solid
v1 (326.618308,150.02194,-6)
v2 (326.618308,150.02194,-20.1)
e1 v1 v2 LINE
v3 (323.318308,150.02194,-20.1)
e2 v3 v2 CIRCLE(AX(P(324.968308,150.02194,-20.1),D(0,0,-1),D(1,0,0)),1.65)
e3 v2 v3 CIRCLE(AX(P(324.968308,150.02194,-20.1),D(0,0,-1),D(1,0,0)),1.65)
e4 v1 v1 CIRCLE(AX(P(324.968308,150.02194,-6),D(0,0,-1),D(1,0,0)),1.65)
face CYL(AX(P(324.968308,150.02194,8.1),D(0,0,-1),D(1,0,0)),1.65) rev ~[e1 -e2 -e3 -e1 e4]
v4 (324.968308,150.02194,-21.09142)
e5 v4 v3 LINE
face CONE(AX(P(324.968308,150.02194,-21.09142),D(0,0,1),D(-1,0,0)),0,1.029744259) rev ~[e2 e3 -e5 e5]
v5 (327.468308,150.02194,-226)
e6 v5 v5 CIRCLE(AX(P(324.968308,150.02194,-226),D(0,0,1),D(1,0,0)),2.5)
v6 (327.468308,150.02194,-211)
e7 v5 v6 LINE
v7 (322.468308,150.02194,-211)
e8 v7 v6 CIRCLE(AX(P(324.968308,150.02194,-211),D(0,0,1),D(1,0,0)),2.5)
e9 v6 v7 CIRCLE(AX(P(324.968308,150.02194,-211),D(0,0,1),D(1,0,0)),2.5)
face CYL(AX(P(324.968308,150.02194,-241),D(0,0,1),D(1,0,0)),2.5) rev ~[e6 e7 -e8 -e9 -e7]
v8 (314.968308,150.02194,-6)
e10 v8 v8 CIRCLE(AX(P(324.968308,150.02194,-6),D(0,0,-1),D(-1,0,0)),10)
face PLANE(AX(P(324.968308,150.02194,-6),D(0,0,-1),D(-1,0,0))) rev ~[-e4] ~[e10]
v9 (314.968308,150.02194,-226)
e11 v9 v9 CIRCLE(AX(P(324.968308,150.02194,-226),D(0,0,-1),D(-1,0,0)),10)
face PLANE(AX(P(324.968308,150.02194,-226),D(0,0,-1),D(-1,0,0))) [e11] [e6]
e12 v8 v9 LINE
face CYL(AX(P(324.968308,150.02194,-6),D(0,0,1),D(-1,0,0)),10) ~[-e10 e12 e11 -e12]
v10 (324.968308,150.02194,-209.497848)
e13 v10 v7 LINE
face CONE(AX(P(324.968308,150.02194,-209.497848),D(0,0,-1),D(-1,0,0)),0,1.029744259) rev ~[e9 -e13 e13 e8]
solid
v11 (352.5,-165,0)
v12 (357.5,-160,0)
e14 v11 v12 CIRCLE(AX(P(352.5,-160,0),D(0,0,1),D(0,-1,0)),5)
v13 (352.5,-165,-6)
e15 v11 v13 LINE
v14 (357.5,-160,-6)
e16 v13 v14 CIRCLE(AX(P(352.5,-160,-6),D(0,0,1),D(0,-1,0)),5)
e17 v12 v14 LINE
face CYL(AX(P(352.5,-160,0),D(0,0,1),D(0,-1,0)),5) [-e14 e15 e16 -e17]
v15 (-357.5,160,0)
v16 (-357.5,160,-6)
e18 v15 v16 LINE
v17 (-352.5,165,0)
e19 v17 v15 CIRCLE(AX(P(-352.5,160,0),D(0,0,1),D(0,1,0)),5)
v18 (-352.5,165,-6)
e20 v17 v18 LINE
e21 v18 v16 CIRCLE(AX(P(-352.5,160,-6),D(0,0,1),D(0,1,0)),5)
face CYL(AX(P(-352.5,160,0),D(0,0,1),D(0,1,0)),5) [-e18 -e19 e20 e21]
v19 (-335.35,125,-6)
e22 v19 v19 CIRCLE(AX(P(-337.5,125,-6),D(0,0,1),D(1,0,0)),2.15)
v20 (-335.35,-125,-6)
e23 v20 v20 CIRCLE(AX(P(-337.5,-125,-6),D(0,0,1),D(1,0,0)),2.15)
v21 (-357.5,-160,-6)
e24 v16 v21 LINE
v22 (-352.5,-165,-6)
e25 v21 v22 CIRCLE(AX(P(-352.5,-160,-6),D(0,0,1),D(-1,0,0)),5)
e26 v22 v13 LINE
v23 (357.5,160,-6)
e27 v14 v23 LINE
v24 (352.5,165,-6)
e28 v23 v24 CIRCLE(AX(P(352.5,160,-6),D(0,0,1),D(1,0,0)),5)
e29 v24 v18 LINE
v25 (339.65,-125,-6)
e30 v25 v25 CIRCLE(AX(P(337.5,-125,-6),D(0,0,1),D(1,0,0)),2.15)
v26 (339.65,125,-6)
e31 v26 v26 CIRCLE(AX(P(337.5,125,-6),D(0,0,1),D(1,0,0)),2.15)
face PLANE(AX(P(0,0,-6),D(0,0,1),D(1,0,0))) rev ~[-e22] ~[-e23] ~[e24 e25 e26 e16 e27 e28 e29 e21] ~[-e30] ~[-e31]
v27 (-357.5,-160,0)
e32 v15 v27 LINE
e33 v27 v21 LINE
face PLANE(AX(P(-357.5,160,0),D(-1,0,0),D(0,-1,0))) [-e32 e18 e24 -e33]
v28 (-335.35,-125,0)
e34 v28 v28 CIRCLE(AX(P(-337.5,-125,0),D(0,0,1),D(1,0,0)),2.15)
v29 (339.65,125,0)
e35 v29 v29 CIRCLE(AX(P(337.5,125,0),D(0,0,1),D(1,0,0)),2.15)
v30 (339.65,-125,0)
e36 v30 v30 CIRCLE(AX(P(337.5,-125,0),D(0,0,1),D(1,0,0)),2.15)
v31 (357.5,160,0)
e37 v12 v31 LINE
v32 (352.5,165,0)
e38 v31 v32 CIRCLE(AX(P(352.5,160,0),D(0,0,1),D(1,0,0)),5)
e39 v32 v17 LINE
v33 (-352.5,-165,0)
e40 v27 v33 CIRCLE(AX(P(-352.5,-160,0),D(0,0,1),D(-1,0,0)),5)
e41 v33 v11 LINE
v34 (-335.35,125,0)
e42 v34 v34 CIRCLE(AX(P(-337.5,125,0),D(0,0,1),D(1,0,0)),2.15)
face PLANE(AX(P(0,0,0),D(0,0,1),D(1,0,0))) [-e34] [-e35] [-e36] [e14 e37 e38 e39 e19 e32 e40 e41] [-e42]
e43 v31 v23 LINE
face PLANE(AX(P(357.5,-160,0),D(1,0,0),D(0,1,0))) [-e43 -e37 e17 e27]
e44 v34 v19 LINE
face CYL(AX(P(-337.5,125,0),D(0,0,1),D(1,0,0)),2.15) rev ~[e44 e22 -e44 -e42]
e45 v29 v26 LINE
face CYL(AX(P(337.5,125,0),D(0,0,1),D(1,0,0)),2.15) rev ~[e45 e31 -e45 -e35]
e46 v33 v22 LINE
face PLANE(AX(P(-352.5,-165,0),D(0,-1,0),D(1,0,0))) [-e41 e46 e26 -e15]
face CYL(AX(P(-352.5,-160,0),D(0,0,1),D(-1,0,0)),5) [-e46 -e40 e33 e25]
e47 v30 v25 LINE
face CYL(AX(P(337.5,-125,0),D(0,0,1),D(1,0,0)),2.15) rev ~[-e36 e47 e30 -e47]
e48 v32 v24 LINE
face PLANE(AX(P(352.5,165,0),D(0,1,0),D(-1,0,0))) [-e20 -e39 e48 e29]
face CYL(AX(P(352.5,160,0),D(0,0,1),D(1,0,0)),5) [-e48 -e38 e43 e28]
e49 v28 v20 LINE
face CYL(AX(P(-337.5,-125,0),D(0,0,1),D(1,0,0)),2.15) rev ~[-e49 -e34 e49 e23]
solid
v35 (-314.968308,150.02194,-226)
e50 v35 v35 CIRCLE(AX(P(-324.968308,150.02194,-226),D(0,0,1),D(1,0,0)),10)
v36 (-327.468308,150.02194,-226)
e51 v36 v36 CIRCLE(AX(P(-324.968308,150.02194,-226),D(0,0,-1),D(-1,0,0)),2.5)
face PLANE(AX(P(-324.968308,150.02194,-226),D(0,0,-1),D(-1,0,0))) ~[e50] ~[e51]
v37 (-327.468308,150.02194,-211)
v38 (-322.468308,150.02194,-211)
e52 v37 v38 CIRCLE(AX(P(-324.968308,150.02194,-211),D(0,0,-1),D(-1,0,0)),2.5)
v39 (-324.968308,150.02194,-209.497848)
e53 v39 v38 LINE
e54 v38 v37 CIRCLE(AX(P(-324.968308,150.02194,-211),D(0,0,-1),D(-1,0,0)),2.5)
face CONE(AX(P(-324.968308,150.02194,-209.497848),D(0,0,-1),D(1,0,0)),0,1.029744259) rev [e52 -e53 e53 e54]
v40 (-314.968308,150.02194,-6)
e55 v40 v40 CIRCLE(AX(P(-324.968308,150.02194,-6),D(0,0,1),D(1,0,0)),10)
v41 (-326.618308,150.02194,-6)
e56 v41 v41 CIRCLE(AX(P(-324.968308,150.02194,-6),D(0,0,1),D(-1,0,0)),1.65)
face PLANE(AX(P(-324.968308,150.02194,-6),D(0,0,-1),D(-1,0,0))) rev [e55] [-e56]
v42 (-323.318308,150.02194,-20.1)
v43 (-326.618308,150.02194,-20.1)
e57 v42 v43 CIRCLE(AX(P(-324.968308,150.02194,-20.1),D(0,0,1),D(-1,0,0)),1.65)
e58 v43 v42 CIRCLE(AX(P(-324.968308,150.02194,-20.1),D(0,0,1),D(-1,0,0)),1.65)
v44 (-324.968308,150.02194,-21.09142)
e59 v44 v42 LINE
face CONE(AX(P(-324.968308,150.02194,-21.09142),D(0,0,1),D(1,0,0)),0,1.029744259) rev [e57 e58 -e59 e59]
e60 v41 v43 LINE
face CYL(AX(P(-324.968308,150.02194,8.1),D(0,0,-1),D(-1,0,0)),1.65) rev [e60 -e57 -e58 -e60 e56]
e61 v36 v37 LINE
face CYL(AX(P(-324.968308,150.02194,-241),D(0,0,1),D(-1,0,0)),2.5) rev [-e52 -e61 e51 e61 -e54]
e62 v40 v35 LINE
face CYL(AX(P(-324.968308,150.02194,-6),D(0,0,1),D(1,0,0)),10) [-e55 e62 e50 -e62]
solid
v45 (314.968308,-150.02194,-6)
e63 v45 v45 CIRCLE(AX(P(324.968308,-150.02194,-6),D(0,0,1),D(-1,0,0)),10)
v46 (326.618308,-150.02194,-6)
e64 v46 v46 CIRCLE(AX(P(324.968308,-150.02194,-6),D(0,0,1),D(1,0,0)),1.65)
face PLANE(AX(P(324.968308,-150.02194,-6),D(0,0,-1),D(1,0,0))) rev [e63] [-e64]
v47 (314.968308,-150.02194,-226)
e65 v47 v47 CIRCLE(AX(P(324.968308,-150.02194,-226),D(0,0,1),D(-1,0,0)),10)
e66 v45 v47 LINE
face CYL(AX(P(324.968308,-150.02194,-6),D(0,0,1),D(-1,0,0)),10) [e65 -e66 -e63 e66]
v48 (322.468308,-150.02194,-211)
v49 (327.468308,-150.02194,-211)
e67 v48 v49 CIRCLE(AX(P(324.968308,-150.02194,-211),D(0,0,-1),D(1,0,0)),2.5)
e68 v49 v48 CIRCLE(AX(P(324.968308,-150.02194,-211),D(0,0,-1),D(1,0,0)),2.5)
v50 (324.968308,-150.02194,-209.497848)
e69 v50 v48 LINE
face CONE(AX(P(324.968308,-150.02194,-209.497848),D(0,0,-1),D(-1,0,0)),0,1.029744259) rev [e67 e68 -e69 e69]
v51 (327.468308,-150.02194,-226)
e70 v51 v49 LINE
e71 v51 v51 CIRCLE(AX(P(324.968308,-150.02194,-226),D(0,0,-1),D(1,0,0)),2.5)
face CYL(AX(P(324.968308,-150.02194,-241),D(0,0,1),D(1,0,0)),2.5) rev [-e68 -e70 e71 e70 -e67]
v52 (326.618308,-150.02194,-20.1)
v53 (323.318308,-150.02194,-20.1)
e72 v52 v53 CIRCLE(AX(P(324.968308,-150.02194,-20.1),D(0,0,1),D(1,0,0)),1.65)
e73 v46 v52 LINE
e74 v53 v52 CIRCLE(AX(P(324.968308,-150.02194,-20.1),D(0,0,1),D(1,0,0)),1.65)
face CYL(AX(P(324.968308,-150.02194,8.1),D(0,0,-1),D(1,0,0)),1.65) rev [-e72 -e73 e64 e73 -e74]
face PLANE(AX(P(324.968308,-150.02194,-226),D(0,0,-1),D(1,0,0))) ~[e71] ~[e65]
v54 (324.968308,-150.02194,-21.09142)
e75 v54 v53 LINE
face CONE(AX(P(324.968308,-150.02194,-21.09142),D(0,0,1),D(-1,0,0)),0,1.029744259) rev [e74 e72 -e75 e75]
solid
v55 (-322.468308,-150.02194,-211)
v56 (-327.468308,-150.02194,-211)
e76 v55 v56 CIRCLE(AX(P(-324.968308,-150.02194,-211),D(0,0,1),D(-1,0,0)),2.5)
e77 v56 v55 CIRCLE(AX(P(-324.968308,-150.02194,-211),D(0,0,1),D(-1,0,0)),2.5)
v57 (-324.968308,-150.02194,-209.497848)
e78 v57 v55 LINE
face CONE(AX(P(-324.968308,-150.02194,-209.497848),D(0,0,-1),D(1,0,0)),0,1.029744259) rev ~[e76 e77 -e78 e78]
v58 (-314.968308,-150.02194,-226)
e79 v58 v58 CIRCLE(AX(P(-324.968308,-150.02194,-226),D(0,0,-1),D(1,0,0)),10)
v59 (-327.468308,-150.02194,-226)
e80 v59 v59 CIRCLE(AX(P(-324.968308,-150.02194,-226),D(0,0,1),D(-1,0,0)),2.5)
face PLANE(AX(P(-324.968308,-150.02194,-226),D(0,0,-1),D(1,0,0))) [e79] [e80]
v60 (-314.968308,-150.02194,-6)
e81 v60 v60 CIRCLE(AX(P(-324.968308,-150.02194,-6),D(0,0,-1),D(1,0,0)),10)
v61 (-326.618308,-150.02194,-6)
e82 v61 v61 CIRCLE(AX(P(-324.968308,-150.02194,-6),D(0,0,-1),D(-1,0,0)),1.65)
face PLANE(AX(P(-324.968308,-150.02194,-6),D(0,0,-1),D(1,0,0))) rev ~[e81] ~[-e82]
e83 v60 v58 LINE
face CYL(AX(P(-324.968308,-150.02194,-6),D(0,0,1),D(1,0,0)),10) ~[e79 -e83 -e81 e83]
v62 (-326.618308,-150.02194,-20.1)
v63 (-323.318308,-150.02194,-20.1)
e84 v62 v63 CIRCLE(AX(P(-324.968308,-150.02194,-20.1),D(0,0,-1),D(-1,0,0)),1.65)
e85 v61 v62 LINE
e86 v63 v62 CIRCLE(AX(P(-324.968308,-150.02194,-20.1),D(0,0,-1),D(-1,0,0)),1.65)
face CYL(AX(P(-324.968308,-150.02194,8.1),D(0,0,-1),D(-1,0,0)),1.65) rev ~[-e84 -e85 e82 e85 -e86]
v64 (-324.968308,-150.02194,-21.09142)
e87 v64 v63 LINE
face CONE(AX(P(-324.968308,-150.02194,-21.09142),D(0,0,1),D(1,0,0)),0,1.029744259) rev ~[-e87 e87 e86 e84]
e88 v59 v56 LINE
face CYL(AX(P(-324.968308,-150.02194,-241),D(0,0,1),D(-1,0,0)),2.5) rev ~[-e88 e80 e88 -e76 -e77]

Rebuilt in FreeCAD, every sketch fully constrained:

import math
import FreeCAD as App
import Part
import Sketcher
Q = App.Units.Quantity

doc = App.newDocument("Part")
body = doc.addObject("PartDesign::Body", "Body")

# Sketch on XY plane
sketch1 = body.newObject("Sketcher::SketchObject", "Sketch")
sketch1.AttachmentSupport = (doc.getObject("XY_Plane"), [""])
sketch1.MapMode = "FlatFace"
sketch1.addGeometry([
    Part.ArcOfCircle(Part.Circle(App.Vector(352.5, 160, 0), App.Vector(0, 0, 1), 5), math.radians(0), math.radians(90)),  # 0
    Part.LineSegment(App.Vector(352.5, 165, 0), App.Vector(-352.5, 165, 0)),  # 1
    Part.ArcOfCircle(Part.Circle(App.Vector(-352.5, 160, 0), App.Vector(0, 0, 1), 5), math.radians(90), math.radians(180)),  # 2
    Part.LineSegment(App.Vector(-357.5, 160, 0), App.Vector(-357.5, -160, 0)),  # 3
    Part.ArcOfCircle(Part.Circle(App.Vector(-352.5, -160, 0), App.Vector(0, 0, 1), 5), math.radians(180), math.radians(270)),  # 4
    Part.LineSegment(App.Vector(-352.5, -165, 0), App.Vector(352.5, -165, 0)),  # 5
    Part.ArcOfCircle(Part.Circle(App.Vector(352.5, -160, 0), App.Vector(0, 0, 1), 5), math.radians(-90), math.radians(0)),  # 6
    Part.LineSegment(App.Vector(357.5, -160, 0), App.Vector(357.5, 160, 0)),  # 7
    Part.Circle(App.Vector(-337.5, -125, 0), App.Vector(0, 0, 1), 2.15),  # 8
    Part.Circle(App.Vector(337.5, -125, 0), App.Vector(0, 0, 1), 2.15),  # 9
    Part.Circle(App.Vector(-337.5, 125, 0), App.Vector(0, 0, 1), 2.15),  # 10
    Part.Circle(App.Vector(337.5, 125, 0), App.Vector(0, 0, 1), 2.15),  # 11
], False)
sketch1.addConstraint([
    Sketcher.Constraint("Tangent", 0, 2, 1, 1),
    Sketcher.Constraint("Tangent", 1, 2, 2, 1),
    Sketcher.Constraint("Tangent", 2, 2, 3, 1),
    Sketcher.Constraint("Tangent", 3, 2, 4, 1),
    Sketcher.Constraint("Tangent", 4, 2, 5, 1),
    Sketcher.Constraint("Tangent", 5, 2, 6, 1),
    Sketcher.Constraint("Tangent", 6, 2, 7, 1),
    Sketcher.Constraint("Tangent", 7, 2, 0, 1),
    Sketcher.Constraint("Horizontal", 1),
    Sketcher.Constraint("Vertical", 3),
    Sketcher.Constraint("Horizontal", 5),
    Sketcher.Constraint("Vertical", 7),
    Sketcher.Constraint("Equal", 0, 2),
    Sketcher.Constraint("Equal", 2, 4),
    Sketcher.Constraint("Equal", 4, 6),
    Sketcher.Constraint("Equal", 8, 9),
    Sketcher.Constraint("Equal", 9, 10),
    Sketcher.Constraint("Equal", 10, 11),
    Sketcher.Constraint("Symmetric", 0, 3, 4, 3, -1, 1),
    Sketcher.Constraint("Symmetric", 9, 3, 10, 3, -1, 1),
    Sketcher.Constraint("Symmetric", 8, 3, 11, 3, -1, 1),
    Sketcher.Constraint("Symmetric", 8, 3, 9, 3, -2),
    Sketcher.Constraint("Radius", 0, Q("5 mm")),
    Sketcher.Constraint("Diameter", 8, Q("4.3 mm")),
    Sketcher.Constraint("DistanceX", 1, 2, 1, 1, Q("705 mm")),
    Sketcher.Constraint("DistanceY", 3, 2, 3, 1, Q("320 mm")),
    Sketcher.Constraint("DistanceY", 8, 3, -1, 1, Q("125 mm")),
    Sketcher.Constraint("DistanceX", 4, 3, 8, 3, Q("15 mm")),
])
pad1 = body.newObject("PartDesign::Pad", "Pad")
pad1.Profile = sketch1
pad1.Length = 6
pad1.Reversed = True
body2 = doc.addObject("PartDesign::Body", "Body001")

# Sketch on XY plane
sketch2 = body2.newObject("Sketcher::SketchObject", "Sketch001")
sketch2.AttachmentSupport = (doc.getObject("XY_Plane001"), [""])
sketch2.MapMode = "FlatFace"
sketch2.AttachmentOffset = App.Placement(App.Vector(0, 0, -6), App.Rotation())
sketch2.addGeometry(Part.Circle(App.Vector(-324.968308, -150.02194, 0), App.Vector(0, 0, 1), 10), False)
sketch2.addConstraint([
    Sketcher.Constraint("Diameter", 0, Q("20 mm")),
    Sketcher.Constraint("DistanceX", 0, 3, -1, 1, Q("324.968308 mm")),
    Sketcher.Constraint("DistanceY", 0, 3, -1, 1, Q("150.02194 mm")),
])
pad2 = body2.newObject("PartDesign::Pad", "Pad001")
pad2.Profile = sketch2
pad2.Length = 220
pad2.Reversed = True

# Sketch on XY plane
sketch3 = body2.newObject("Sketcher::SketchObject", "Sketch002")
sketch3.AttachmentSupport = (doc.getObject("XY_Plane001"), [""])
sketch3.MapMode = "FlatFace"
sketch3.AttachmentOffset = App.Placement(App.Vector(0, 0, -226), App.Rotation())
sketch3.addGeometry(Part.Circle(App.Vector(-324.968308, -150.02194, 0), App.Vector(0, 0, 1), 2.5), False)
sketch3.addConstraint([
    Sketcher.Constraint("Diameter", 0, Q("5 mm")),
    Sketcher.Constraint("DistanceX", 0, 3, -1, 1, Q("324.968308 mm")),
    Sketcher.Constraint("DistanceY", 0, 3, -1, 1, Q("150.02194 mm")),
])
doc.recompute()
hole = body2.newObject("PartDesign::Hole", "Hole")
hole.Profile = sketch3
hole.ThreadType = "None"
hole.Diameter = 5
hole.DepthType = "Dimension"
hole.Depth = 15
hole.DrillPoint = "Angled"
hole.DrillPointAngle = 118
hole.Reversed = True

# Sketch on XY plane
sketch4 = body2.newObject("Sketcher::SketchObject", "Sketch003")
sketch4.AttachmentSupport = (doc.getObject("XY_Plane001"), [""])
sketch4.MapMode = "FlatFace"
sketch4.AttachmentOffset = App.Placement(App.Vector(0, 0, -6), App.Rotation())
sketch4.addGeometry(Part.Circle(App.Vector(-324.968308, -150.02194, 0), App.Vector(0, 0, 1), 1.65), False)
sketch4.addConstraint([
    Sketcher.Constraint("Diameter", 0, Q("3.3 mm")),
    Sketcher.Constraint("DistanceX", 0, 3, -1, 1, Q("324.968308 mm")),
    Sketcher.Constraint("DistanceY", 0, 3, -1, 1, Q("150.02194 mm")),
])
doc.recompute()
hole2 = body2.newObject("PartDesign::Hole", "Hole001")
hole2.Profile = sketch4
hole2.ThreadType = "None"
hole2.Diameter = 3.3
hole2.DepthType = "Dimension"
hole2.Depth = 14.1
hole2.DrillPoint = "Angled"
hole2.DrillPointAngle = 118
body3 = doc.addObject("PartDesign::Body", "Body002")
doc.recompute()

mirroring = doc.addObject("Part::Mirroring", "Mirroring")
mirroring.Source = body2
mirroring.Base = App.Vector(0, 0, 0)
mirroring.Normal = App.Vector(1, 0, 0)
body3.BaseFeature = mirroring
doc.recompute()
body4 = doc.addObject("PartDesign::Body", "Body003")
doc.recompute()

mirroring2 = doc.addObject("Part::Mirroring", "Mirroring001")
mirroring2.Source = body2
mirroring2.Base = App.Vector(0, 0, 0)
mirroring2.Normal = App.Vector(0, -1, 0)
body4.BaseFeature = mirroring2
doc.recompute()
body5 = doc.addObject("PartDesign::Body", "Body004")
doc.recompute()

mirroring3 = doc.addObject("Part::Mirroring", "Mirroring002")
mirroring3.Source = body3
mirroring3.Base = App.Vector(0, 0, 0)
mirroring3.Normal = App.Vector(0, -1, 0)
body5.BaseFeature = mirroring3
doc.recompute()
mirroring.Visibility = False
mirroring2.Visibility = False
mirroring3.Visibility = False

doc.recompute()
